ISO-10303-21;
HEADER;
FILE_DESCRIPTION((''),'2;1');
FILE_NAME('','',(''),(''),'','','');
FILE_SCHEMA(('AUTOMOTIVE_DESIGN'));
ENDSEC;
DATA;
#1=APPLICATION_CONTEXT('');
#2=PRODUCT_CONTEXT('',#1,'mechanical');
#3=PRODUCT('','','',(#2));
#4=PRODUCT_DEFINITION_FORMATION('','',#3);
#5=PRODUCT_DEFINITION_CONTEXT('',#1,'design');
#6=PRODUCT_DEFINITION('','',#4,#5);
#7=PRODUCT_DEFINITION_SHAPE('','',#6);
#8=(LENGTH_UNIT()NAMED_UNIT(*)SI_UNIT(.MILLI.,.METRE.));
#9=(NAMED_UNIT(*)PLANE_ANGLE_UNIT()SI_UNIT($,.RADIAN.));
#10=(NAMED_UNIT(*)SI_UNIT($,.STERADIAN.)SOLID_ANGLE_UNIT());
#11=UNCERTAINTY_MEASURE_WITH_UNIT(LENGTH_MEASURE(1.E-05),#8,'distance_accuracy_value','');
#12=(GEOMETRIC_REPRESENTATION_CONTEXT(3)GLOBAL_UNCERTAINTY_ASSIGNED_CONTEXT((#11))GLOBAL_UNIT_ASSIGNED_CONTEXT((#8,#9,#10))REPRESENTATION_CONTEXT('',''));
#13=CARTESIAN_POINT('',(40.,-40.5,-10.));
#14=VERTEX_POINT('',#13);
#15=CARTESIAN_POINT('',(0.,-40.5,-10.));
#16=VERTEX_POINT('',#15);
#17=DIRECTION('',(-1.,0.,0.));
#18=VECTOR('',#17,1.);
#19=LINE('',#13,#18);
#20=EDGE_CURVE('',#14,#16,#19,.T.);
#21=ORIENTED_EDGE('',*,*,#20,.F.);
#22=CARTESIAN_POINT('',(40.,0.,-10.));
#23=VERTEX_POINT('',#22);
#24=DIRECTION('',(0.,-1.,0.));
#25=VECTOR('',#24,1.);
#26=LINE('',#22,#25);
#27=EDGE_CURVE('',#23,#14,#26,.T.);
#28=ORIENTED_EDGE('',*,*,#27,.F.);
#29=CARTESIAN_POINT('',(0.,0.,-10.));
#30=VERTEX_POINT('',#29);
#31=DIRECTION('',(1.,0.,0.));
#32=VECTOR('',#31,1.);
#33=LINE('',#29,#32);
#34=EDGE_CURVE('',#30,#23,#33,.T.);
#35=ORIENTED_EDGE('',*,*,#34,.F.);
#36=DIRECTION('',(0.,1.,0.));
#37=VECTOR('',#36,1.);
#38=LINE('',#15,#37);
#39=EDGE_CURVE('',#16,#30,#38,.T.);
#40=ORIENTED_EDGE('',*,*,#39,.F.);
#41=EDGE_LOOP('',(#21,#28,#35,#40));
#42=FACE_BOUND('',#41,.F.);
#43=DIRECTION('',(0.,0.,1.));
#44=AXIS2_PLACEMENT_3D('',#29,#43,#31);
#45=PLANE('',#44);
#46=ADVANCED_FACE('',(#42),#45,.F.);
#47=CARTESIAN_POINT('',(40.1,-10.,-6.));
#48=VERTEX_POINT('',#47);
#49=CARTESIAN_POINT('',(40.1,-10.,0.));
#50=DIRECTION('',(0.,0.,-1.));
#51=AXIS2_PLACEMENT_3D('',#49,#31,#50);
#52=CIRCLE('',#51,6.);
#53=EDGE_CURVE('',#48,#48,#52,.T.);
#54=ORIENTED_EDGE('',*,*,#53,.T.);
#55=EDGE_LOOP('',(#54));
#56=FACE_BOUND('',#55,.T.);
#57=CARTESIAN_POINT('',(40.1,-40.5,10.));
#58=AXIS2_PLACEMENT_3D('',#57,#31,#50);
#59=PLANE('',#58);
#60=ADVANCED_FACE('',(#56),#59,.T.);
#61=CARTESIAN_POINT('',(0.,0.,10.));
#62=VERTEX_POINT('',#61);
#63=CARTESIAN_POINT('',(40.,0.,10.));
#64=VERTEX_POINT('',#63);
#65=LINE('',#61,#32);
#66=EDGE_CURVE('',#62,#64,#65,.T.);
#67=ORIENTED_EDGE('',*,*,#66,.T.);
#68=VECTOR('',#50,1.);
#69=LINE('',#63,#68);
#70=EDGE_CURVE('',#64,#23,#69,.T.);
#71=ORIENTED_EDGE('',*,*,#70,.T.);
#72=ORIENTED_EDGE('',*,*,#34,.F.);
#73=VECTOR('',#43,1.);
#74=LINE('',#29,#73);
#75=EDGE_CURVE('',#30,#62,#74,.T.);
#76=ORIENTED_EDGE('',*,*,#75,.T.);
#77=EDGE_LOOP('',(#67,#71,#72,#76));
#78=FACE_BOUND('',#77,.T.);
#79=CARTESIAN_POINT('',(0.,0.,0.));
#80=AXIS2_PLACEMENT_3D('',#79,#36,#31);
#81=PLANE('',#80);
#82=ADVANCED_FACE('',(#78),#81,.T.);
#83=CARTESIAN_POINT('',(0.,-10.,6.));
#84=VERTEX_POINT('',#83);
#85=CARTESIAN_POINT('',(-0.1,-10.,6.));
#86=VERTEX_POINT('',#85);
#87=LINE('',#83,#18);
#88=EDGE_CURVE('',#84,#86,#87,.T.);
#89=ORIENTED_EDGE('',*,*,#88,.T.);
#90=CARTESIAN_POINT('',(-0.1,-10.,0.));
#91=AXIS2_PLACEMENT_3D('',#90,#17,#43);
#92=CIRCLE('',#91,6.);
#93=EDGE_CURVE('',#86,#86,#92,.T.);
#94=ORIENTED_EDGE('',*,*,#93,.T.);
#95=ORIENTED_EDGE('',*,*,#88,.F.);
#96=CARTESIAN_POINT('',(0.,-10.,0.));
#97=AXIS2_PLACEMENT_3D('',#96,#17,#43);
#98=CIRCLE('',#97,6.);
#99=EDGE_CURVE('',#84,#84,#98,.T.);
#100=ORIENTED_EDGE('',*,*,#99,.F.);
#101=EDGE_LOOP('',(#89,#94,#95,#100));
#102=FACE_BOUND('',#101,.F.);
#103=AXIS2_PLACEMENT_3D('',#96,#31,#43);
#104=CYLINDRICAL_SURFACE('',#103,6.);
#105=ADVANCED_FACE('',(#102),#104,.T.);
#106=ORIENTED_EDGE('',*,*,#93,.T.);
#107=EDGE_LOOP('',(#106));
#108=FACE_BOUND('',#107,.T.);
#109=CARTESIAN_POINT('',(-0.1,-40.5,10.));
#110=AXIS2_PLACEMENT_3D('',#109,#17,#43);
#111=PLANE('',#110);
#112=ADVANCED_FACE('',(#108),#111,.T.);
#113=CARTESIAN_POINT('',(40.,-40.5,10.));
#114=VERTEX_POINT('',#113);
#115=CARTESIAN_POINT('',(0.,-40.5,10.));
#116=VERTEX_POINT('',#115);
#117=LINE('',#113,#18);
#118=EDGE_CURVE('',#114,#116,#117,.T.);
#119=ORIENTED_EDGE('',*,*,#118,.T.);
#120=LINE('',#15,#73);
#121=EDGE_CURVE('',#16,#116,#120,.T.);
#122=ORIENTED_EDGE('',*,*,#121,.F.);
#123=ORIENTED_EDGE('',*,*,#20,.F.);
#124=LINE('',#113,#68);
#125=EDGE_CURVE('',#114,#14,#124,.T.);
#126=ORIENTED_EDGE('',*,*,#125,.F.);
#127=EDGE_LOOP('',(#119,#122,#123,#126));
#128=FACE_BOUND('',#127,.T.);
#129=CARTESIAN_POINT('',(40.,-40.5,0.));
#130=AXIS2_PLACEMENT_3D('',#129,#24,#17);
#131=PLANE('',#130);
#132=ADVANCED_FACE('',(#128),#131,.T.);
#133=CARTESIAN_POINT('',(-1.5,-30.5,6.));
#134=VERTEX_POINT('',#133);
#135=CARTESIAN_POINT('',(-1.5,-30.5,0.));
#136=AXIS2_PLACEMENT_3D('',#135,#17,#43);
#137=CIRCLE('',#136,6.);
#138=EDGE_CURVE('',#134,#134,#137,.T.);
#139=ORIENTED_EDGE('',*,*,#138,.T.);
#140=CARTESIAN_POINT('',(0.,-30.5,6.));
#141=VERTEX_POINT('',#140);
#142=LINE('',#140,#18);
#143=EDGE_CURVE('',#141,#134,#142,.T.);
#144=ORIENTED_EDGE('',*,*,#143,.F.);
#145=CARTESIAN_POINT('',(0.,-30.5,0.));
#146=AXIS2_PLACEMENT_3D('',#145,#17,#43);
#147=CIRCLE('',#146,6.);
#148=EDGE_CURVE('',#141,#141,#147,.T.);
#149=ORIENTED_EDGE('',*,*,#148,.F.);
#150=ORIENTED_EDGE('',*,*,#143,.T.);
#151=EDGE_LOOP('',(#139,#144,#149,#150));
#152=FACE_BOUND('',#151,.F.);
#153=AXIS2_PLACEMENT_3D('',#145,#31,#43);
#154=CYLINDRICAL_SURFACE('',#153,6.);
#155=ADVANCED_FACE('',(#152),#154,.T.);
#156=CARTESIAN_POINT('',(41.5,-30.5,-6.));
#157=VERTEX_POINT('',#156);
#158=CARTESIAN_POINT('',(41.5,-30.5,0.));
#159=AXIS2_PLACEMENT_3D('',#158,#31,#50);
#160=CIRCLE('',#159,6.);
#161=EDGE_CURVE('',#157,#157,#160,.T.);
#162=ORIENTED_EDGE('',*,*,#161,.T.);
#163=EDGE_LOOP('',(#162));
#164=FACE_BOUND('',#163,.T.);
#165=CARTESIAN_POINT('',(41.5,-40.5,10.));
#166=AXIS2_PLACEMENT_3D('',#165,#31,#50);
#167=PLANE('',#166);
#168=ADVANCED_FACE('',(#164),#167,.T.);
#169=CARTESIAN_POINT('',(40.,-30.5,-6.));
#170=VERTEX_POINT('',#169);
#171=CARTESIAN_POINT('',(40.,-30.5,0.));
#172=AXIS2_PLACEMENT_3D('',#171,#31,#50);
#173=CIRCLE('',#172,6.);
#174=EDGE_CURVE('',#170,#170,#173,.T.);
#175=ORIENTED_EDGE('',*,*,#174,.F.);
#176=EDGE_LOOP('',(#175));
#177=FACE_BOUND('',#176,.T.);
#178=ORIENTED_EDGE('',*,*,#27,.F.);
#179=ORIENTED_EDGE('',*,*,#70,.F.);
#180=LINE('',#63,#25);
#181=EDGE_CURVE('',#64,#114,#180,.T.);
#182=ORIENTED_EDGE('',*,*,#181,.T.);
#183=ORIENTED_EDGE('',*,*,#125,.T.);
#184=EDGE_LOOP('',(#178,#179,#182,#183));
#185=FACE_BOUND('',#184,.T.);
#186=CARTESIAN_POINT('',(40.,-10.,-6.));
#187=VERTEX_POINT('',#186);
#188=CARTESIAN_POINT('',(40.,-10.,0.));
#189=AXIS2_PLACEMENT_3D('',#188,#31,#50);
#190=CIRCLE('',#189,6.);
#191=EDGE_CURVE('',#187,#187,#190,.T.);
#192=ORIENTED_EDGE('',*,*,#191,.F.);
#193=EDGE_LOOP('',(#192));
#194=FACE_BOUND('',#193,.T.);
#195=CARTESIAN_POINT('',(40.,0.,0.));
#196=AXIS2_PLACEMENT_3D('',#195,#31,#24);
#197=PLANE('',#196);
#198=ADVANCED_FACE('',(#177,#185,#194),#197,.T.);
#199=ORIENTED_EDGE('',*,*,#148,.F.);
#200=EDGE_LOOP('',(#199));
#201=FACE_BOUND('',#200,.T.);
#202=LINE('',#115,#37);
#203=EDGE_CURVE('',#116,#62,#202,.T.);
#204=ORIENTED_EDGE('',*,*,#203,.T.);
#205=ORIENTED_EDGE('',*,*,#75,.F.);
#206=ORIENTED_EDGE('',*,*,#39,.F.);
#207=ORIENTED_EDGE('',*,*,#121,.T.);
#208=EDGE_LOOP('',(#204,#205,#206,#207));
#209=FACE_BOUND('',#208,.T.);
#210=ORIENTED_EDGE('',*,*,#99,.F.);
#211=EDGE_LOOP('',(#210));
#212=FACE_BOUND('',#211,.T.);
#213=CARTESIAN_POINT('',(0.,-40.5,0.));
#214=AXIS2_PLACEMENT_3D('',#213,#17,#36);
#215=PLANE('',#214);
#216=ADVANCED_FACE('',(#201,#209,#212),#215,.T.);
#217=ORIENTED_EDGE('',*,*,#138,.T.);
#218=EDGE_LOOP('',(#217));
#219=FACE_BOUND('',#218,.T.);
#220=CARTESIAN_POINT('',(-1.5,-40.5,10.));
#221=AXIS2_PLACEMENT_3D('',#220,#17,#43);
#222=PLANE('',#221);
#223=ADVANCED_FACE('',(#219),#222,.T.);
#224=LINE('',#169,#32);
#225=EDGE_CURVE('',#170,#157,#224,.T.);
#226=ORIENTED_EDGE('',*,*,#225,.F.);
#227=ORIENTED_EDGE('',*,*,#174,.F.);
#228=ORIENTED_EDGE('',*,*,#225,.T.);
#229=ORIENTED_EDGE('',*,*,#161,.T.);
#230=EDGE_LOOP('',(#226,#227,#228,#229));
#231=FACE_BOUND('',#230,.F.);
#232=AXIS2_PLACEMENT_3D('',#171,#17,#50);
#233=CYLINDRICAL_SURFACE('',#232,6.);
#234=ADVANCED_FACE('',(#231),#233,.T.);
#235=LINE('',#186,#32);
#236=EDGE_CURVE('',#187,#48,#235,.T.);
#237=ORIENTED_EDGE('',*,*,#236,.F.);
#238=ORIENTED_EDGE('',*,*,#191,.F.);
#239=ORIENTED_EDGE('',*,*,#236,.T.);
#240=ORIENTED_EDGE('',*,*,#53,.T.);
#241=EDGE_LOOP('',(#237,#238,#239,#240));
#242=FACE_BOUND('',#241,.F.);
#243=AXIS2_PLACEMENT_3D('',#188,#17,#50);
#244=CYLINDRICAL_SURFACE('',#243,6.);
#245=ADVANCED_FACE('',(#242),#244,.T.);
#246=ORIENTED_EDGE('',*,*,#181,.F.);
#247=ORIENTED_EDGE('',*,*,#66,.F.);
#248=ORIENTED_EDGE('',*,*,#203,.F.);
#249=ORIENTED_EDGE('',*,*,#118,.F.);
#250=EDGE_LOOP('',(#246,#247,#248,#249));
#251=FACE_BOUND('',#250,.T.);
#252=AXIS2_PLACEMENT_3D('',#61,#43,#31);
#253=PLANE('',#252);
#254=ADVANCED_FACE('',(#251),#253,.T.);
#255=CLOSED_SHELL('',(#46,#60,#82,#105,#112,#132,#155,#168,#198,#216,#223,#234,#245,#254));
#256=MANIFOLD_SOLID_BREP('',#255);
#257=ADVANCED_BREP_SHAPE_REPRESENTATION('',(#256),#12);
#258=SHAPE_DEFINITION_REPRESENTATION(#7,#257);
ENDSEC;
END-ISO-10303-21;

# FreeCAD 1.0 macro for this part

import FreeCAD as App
import Part
import Sketcher
Q = App.Units.Quantity


def add_polygon(sketch, points):
    """Adds a closed chain of lines whose ends are joined by coincident constraints."""
    first, n = sketch.GeometryCount, len(points)
    for a, b in zip(points, points[1:] + points[:1]):
        sketch.addGeometry(Part.LineSegment(App.Vector(*a, 0), App.Vector(*b, 0)), False)
    for i in range(n):
        sketch.addConstraint(Sketcher.Constraint("Coincident", first + i, 2, first + (i + 1) % n, 1))

doc = App.newDocument("Part")
body = doc.addObject("PartDesign::Body", "Body")

sketch1 = body.newObject("Sketcher::SketchObject", "Sketch")
sketch1.AttachmentSupport = (doc.getObject("XY_Plane"), [""])
sketch1.MapMode = "FlatFace"
add_polygon(sketch1, [(40, 0), (0, 0), (0, -40), (40, -40)])
sketch1.addConstraint(Sketcher.Constraint("Horizontal", 0))
sketch1.addConstraint(Sketcher.Constraint("Vertical", 1))
sketch1.addConstraint(Sketcher.Constraint("Horizontal", 2))
sketch1.addConstraint(Sketcher.Constraint("Vertical", 3))
sketch1.addConstraint(Sketcher.Constraint("Coincident", 0, 2, -1, 1))
sketch1.addConstraint(Sketcher.Constraint("DistanceX", 0, 2, 0, 1, Q("40 mm")))
sketch1.addConstraint(Sketcher.Constraint("DistanceY", 1, 2, 1, 1, Q("40.5 mm")))
pad1 = body.newObject("PartDesign::Pad", "Pad")
pad1.Profile = sketch1
pad1.Length = 20
pad1.Midplane = True

sketch2 = body.newObject("Sketcher::SketchObject", "Sketch001")
sketch2.AttachmentSupport = (doc.getObject("YZ_Plane"), [""])
sketch2.MapMode = "FlatFace"
sketch2.addGeometry(Part.Circle(App.Vector(-30, 0, 0), App.Vector(0, 0, 1), 6), False)
sketch2.addConstraint(Sketcher.Constraint("PointOnObject", 0, 3, -1))
sketch2.addConstraint(Sketcher.Constraint("Diameter", 0, Q("12 mm")))
sketch2.addConstraint(Sketcher.Constraint("DistanceX", 0, 3, -1, 1, Q("30.5 mm")))
pad2 = body.newObject("PartDesign::Pad", "Pad001")
pad2.Profile = sketch2
pad2.Length = 1.5
pad2.Reversed = True

sketch3 = body.newObject("Sketcher::SketchObject", "Sketch002")
sketch3.AttachmentSupport = (doc.getObject("YZ_Plane"), [""])
sketch3.MapMode = "FlatFace"
sketch3.AttachmentOffset = App.Placement(App.Vector(0, 0, 40), App.Rotation())
sketch3.addGeometry(Part.Circle(App.Vector(-30, 0, 0), App.Vector(0, 0, 1), 6), False)
sketch3.addConstraint(Sketcher.Constraint("PointOnObject", 0, 3, -1))
sketch3.addConstraint(Sketcher.Constraint("Diameter", 0, Q("12 mm")))
sketch3.addConstraint(Sketcher.Constraint("DistanceX", 0, 3, -1, 1, Q("30.5 mm")))
pad3 = body.newObject("PartDesign::Pad", "Pad002")
pad3.Profile = sketch3
pad3.Length = 1.5

sketch4 = body.newObject("Sketcher::SketchObject", "Sketch003")
sketch4.AttachmentSupport = (doc.getObject("YZ_Plane"), [""])
sketch4.MapMode = "FlatFace"
sketch4.addGeometry(Part.Circle(App.Vector(-10, 0, 0), App.Vector(0, 0, 1), 6), False)
sketch4.addConstraint(Sketcher.Constraint("PointOnObject", 0, 3, -1))
sketch4.addConstraint(Sketcher.Constraint("Diameter", 0, Q("12 mm")))
sketch4.addConstraint(Sketcher.Constraint("DistanceX", 0, 3, -1, 1, Q("10 mm")))
pad4 = body.newObject("PartDesign::Pad", "Pad003")
pad4.Profile = sketch4
pad4.Length = 0.1
pad4.Reversed = True

sketch5 = body.newObject("Sketcher::SketchObject", "Sketch004")
sketch5.AttachmentSupport = (doc.getObject("YZ_Plane"), [""])
sketch5.MapMode = "FlatFace"
sketch5.AttachmentOffset = App.Placement(App.Vector(0, 0, 40), App.Rotation())
sketch5.addGeometry(Part.Circle(App.Vector(-10, 0, 0), App.Vector(0, 0, 1), 6), False)
sketch5.addConstraint(Sketcher.Constraint("PointOnObject", 0, 3, -1))
sketch5.addConstraint(Sketcher.Constraint("Diameter", 0, Q("12 mm")))
sketch5.addConstraint(Sketcher.Constraint("DistanceX", 0, 3, -1, 1, Q("10 mm")))
pad5 = body.newObject("PartDesign::Pad", "Pad004")
pad5.Profile = sketch5
pad5.Length = 0.1

doc.recompute()
